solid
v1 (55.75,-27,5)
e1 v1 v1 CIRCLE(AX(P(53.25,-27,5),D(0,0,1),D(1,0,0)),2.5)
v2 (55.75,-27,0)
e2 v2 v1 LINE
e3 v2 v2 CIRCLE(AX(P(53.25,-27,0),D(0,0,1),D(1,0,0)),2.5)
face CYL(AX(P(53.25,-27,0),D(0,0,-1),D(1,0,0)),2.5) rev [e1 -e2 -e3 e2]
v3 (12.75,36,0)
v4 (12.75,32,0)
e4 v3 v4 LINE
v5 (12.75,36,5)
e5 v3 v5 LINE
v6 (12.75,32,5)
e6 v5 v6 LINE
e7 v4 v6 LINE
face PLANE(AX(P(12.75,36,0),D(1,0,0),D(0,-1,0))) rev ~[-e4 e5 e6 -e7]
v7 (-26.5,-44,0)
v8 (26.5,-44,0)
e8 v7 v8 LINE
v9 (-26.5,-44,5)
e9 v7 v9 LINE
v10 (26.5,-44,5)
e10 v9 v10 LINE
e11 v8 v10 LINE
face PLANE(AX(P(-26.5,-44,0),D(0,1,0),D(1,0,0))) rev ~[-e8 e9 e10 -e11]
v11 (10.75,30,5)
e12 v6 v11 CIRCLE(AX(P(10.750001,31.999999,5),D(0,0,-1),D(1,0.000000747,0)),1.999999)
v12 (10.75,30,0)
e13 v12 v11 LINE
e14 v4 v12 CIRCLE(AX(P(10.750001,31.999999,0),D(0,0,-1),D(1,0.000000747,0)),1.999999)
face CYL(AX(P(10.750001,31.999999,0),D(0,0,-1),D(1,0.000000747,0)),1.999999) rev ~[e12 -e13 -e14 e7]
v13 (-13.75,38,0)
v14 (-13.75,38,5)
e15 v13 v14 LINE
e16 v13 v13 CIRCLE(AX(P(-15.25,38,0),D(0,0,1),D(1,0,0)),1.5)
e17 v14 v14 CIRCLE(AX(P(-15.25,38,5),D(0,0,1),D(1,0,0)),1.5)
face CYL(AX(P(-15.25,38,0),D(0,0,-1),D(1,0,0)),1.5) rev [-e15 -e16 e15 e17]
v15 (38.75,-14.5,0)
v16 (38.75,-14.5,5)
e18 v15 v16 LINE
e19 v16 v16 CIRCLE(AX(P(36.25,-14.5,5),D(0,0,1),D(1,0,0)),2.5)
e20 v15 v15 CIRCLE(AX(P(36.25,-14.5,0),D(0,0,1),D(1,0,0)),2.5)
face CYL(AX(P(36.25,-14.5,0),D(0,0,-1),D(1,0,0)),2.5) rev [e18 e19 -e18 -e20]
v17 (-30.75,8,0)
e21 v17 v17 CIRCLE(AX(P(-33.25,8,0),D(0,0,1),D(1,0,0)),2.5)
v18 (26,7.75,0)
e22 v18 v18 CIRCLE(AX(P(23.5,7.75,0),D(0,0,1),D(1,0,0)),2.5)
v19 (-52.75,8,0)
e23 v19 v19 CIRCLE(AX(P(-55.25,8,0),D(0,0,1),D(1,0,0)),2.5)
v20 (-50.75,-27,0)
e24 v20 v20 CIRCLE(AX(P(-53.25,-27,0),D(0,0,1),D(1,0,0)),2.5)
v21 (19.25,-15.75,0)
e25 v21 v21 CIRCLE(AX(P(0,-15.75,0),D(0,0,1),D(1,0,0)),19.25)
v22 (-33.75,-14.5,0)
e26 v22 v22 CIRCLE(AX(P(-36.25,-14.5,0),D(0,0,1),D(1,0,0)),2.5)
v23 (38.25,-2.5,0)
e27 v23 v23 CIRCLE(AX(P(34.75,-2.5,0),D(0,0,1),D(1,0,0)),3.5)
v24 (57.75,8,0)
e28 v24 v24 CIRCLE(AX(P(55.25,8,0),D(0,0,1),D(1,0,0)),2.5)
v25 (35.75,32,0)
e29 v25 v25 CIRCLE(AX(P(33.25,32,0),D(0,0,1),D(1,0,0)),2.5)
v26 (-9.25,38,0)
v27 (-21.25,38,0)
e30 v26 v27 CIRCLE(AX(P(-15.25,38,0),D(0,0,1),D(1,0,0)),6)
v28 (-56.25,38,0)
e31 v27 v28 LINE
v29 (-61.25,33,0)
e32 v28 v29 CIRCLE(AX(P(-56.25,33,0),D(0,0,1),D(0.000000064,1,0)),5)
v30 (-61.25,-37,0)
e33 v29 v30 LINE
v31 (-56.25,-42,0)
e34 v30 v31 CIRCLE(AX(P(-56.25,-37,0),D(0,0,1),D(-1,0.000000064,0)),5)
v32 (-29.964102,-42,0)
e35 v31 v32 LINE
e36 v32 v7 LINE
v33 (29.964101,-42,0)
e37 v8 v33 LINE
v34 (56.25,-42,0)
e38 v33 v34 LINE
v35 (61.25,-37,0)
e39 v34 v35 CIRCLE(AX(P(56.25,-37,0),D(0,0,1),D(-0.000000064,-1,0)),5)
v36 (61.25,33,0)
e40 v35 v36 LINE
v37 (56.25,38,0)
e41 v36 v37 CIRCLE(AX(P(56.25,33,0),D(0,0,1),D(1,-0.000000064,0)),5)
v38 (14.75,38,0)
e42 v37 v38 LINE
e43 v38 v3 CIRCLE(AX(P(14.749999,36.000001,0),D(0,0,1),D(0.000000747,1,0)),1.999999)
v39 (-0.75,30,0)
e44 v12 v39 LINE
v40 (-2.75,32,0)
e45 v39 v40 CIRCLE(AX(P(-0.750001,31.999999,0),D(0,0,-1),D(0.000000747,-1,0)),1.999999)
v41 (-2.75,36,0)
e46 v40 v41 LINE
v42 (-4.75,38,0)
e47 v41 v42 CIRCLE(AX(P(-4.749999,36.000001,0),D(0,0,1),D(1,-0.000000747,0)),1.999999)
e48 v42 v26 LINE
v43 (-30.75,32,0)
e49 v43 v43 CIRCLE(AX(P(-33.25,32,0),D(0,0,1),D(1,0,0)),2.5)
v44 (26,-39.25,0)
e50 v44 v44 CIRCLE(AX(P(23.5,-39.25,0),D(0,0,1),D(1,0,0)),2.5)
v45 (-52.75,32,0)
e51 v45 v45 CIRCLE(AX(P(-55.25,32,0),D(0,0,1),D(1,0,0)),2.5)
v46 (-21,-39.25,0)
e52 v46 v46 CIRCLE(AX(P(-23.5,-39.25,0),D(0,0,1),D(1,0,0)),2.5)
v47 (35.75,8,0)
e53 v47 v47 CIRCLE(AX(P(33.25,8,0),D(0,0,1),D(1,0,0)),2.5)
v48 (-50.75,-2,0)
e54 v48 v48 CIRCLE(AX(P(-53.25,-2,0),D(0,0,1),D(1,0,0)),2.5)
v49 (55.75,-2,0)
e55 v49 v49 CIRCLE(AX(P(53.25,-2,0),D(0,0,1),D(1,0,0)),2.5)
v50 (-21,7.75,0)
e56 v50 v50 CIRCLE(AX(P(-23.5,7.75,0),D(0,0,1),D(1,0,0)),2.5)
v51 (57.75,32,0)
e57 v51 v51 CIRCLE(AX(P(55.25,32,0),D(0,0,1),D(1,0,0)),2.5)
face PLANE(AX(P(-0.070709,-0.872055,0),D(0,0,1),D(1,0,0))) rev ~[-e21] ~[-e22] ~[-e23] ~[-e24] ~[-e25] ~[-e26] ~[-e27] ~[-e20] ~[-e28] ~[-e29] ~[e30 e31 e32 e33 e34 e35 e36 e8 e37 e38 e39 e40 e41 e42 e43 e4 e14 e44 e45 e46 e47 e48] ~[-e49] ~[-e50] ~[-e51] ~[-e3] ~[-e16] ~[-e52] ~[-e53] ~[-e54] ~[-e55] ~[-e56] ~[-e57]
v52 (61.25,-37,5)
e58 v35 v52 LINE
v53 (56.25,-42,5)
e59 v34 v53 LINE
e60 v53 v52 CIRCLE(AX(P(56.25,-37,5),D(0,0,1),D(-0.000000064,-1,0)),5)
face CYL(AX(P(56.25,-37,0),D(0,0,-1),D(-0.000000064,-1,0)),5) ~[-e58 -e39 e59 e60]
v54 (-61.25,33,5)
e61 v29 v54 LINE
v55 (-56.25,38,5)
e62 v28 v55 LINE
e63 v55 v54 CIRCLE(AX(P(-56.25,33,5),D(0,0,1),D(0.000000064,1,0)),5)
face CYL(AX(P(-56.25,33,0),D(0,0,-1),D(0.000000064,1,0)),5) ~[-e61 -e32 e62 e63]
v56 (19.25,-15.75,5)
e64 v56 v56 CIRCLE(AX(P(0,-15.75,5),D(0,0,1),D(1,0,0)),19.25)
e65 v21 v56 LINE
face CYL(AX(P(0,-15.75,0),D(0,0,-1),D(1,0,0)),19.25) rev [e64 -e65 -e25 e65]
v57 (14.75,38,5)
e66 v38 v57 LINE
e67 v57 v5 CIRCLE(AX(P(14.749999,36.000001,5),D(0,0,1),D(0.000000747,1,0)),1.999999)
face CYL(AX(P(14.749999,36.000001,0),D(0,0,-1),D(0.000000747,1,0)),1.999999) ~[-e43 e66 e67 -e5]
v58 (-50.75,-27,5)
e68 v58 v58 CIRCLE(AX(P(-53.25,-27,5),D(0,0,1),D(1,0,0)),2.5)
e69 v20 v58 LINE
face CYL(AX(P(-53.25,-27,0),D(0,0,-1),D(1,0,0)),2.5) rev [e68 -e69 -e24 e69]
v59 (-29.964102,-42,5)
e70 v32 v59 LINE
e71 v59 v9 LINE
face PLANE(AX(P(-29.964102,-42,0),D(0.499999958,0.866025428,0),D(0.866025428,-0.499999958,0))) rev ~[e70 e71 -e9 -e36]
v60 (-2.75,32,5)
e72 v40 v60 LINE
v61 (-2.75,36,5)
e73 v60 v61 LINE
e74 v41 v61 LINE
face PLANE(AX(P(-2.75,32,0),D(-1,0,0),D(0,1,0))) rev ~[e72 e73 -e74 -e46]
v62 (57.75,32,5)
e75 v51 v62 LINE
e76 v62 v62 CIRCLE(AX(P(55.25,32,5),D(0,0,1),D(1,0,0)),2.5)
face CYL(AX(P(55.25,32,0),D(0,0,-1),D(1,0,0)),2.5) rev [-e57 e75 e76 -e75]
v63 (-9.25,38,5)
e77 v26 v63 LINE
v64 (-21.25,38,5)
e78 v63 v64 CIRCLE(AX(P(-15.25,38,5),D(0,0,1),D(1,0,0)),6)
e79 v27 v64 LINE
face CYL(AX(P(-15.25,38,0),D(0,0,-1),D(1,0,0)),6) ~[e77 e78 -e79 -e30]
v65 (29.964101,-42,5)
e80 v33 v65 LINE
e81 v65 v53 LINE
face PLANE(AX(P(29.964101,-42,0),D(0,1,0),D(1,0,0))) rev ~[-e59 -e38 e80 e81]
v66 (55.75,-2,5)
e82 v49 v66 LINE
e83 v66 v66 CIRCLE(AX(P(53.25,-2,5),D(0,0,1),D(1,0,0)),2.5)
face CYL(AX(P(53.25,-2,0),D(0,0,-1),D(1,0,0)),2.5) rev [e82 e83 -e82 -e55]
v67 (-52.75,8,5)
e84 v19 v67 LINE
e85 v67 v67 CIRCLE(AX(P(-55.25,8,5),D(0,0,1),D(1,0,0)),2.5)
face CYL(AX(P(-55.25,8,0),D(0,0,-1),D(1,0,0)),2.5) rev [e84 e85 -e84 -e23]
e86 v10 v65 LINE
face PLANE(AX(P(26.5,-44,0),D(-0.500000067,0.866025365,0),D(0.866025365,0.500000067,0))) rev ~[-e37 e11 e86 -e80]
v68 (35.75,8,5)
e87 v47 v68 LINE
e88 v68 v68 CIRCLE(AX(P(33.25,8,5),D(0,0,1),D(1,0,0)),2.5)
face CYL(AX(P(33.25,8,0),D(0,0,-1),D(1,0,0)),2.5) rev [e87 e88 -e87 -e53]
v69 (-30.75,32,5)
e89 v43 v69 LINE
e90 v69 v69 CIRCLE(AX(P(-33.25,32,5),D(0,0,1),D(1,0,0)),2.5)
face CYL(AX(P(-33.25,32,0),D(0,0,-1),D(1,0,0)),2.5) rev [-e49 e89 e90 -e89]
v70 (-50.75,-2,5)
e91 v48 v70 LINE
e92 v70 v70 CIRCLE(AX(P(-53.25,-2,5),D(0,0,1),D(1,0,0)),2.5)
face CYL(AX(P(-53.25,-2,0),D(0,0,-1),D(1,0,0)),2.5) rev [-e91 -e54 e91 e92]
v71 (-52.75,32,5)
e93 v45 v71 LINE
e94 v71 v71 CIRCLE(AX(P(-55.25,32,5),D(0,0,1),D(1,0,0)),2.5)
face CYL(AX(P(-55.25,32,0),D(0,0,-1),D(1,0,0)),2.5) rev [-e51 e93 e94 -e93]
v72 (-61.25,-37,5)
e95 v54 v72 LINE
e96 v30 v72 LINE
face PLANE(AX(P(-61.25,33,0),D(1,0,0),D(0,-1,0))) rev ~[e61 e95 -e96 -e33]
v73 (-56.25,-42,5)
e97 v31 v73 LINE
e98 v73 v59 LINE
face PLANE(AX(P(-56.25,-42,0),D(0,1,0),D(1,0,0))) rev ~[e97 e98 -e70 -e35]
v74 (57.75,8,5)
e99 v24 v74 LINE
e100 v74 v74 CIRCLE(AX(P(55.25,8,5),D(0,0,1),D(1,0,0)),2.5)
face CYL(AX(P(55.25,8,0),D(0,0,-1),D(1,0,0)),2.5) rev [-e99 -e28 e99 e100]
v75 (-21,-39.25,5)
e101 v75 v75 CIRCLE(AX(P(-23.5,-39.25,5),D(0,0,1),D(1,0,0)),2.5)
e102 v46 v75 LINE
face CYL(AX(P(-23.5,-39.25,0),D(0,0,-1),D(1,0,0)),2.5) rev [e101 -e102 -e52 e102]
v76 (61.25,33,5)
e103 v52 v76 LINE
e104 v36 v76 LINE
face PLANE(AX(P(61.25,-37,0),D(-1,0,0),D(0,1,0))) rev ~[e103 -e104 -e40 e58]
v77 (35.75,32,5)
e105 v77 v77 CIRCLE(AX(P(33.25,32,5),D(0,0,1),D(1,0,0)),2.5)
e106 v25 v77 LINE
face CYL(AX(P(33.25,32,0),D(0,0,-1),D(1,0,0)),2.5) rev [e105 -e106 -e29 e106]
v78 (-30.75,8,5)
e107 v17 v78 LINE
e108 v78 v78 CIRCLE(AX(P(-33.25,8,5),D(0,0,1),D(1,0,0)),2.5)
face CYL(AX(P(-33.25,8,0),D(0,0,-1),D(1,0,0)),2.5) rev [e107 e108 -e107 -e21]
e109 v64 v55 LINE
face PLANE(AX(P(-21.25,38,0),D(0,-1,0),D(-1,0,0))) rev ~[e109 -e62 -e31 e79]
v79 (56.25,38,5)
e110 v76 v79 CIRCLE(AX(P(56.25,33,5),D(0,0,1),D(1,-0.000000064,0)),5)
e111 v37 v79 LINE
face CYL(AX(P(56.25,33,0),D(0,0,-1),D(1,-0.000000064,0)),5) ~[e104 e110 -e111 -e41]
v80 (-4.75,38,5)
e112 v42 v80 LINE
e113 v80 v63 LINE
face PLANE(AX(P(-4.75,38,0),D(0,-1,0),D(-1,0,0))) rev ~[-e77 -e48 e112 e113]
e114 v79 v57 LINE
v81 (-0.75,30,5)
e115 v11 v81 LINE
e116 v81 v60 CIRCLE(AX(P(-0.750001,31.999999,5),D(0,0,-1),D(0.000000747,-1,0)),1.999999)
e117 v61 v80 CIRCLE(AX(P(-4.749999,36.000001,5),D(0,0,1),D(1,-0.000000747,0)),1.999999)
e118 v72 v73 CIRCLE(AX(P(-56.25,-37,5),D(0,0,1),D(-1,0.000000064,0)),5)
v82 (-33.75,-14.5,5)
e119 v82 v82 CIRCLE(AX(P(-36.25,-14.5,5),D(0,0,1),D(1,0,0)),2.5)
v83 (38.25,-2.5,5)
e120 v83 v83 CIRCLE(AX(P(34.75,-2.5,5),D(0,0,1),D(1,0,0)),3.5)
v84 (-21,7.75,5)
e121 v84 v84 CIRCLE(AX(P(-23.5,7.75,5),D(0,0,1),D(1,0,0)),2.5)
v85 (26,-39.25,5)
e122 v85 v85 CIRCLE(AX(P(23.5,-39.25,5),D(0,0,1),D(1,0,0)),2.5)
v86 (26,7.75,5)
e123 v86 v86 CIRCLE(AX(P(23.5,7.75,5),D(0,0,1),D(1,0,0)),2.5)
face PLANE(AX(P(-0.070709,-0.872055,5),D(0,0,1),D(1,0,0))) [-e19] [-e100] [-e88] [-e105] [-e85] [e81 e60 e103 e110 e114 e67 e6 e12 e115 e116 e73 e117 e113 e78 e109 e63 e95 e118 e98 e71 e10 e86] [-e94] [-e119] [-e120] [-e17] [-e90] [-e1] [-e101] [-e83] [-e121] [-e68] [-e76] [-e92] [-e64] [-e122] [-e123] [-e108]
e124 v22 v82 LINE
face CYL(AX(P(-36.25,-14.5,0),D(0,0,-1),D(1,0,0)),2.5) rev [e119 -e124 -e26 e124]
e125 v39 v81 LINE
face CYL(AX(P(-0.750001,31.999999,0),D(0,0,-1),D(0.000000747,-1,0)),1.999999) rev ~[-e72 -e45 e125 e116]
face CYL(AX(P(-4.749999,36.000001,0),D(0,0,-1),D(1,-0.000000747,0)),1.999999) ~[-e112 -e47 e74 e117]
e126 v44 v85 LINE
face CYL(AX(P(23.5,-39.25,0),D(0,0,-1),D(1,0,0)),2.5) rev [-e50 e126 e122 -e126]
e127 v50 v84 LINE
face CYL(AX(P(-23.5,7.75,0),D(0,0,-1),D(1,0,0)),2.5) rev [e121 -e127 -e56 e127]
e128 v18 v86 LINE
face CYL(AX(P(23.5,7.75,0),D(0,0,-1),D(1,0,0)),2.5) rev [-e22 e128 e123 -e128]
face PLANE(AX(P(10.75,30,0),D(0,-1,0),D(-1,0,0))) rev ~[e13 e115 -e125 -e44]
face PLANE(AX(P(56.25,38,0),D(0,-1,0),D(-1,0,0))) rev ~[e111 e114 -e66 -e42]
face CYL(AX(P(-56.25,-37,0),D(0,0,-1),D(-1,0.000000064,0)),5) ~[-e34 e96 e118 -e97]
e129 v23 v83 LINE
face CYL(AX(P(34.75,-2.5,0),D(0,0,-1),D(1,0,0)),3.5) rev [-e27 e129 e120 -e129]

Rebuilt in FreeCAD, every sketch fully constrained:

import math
import FreeCAD as App
import Part
import Sketcher

V = App.Vector
Q = App.Units.Quantity

doc = App.newDocument("Part")
body = doc.addObject("PartDesign::Body", "Body")

sketch1 = body.newObject("Sketcher::SketchObject", "Sketch")
sketch1.AttachmentSupport = (doc.getObject("XY_Plane"), [""])
sketch1.MapMode = "FlatFace"
sketch1.addGeometry([
    Part.LineSegment(V(56.25, 38, 0), V(14.75, 38, 0)),
    Part.ArcOfCircle(Part.Circle(V(14.749999, 36.000001, 0), V(0, 0, 1), 1.999999), math.radians(89.999957), math.radians(180.000043)),
    Part.LineSegment(V(12.75, 36, 0), V(12.75, 32, 0)),
    Part.ArcOfCircle(Part.Circle(V(10.750001, 31.999999, 0), V(0, 0, 1), 1.999999), math.radians(-90.000043), math.radians(0.000043)),
    Part.LineSegment(V(10.75, 30, 0), V(-0.75, 30, 0)),
    Part.ArcOfCircle(Part.Circle(V(-0.750001, 31.999999, 0), V(0, 0, 1), 1.999999), math.radians(179.999957), math.radians(270.000043)),
    Part.LineSegment(V(-2.75, 32, 0), V(-2.75, 36, 0)),
    Part.ArcOfCircle(Part.Circle(V(-4.749999, 36.000001, 0), V(0, 0, 1), 1.999999), math.radians(-0.000043), math.radians(90.000043)),
    Part.LineSegment(V(-4.75, 38, 0), V(-9.25, 38, 0)),
    Part.ArcOfCircle(Part.Circle(V(-15.25, 38, 0), V(0, 0, 1), 6), math.radians(0), math.radians(180)),
    Part.LineSegment(V(-21.25, 38, 0), V(-56.25, 38, 0)),
    Part.ArcOfCircle(Part.Circle(V(-56.25, 33, 0), V(0, 0, 1), 5), math.radians(89.999996), math.radians(180.000004)),
    Part.LineSegment(V(-61.25, 33, 0), V(-61.25, -37, 0)),
    Part.ArcOfCircle(Part.Circle(V(-56.25, -37, 0), V(0, 0, 1), 5), math.radians(179.999996), math.radians(270.000004)),
    Part.LineSegment(V(-56.25, -42, 0), V(-29.964102, -42, 0)),
    Part.LineSegment(V(-29.964102, -42, 0), V(-26.5, -44, 0)),
    Part.LineSegment(V(-26.5, -44, 0), V(26.5, -44, 0)),
    Part.LineSegment(V(26.5, -44, 0), V(29.964101, -42, 0)),
    Part.LineSegment(V(29.964101, -42, 0), V(56.25, -42, 0)),
    Part.ArcOfCircle(Part.Circle(V(56.25, -37, 0), V(0, 0, 1), 5), math.radians(-90.000004), math.radians(0.000004)),
    Part.LineSegment(V(61.25, -37, 0), V(61.25, 33, 0)),
    Part.ArcOfCircle(Part.Circle(V(56.25, 33, 0), V(0, 0, 1), 5), math.radians(-0.000004), math.radians(90.000004)),
    Part.Circle(V(-53.25, -27, 0), V(0, 0, 1), 2.5),
    Part.Circle(V(-23.5, -39.25, 0), V(0, 0, 1), 2.5),
    Part.Circle(V(-36.25, -14.5, 0), V(0, 0, 1), 2.5),
    Part.Circle(V(-53.25, -2, 0), V(0, 0, 1), 2.5),
    Part.Circle(V(23.5, -39.25, 0), V(0, 0, 1), 2.5),
    Part.Circle(V(53.25, -27, 0), V(0, 0, 1), 2.5),
    Part.Circle(V(0, -15.75, 0), V(0, 0, 1), 19.25),
    Part.Circle(V(36.25, -14.5, 0), V(0, 0, 1), 2.5),
    Part.Circle(V(34.75, -2.5, 0), V(0, 0, 1), 3.5),
    Part.Circle(V(53.25, -2, 0), V(0, 0, 1), 2.5),
    Part.Circle(V(-55.25, 8, 0), V(0, 0, 1), 2.5),
    Part.Circle(V(-33.25, 8, 0), V(0, 0, 1), 2.5),
    Part.Circle(V(-23.5, 7.75, 0), V(0, 0, 1), 2.5),
    Part.Circle(V(-55.25, 32, 0), V(0, 0, 1), 2.5),
    Part.Circle(V(-33.25, 32, 0), V(0, 0, 1), 2.5),
    Part.Circle(V(-15.25, 38, 0), V(0, 0, 1), 1.5),
    Part.Circle(V(23.5, 7.75, 0), V(0, 0, 1), 2.5),
    Part.Circle(V(33.25, 8, 0), V(0, 0, 1), 2.5),
    Part.Circle(V(55.25, 8, 0), V(0, 0, 1), 2.5),
    Part.Circle(V(33.25, 32, 0), V(0, 0, 1), 2.5),
    Part.Circle(V(55.25, 32, 0), V(0, 0, 1), 2.5),
], False)
sketch1.addConstraint([
    Sketcher.Constraint("Tangent", 0, 2, 1, 1),
    Sketcher.Constraint("Tangent", 1, 2, 2, 1),
    Sketcher.Constraint("Tangent", 2, 2, 3, 2),
    Sketcher.Constraint("Tangent", 3, 1, 4, 1),
    Sketcher.Constraint("Tangent", 4, 2, 5, 2),
    Sketcher.Constraint("Tangent", 5, 1, 6, 1),
    Sketcher.Constraint("Tangent", 6, 2, 7, 1),
    Sketcher.Constraint("Tangent", 7, 2, 8, 1),
    Sketcher.Constraint("Coincident", 8, 2, 9, 1),
    Sketcher.Constraint("Coincident", 9, 2, 10, 1),
    Sketcher.Constraint("Tangent", 10, 2, 11, 1),
    Sketcher.Constraint("Tangent", 11, 2, 12, 1),
    Sketcher.Constraint("Tangent", 12, 2, 13, 1),
    Sketcher.Constraint("Tangent", 13, 2, 14, 1),
    Sketcher.Constraint("Coincident", 14, 2, 15, 1),
    Sketcher.Constraint("Coincident", 15, 2, 16, 1),
    Sketcher.Constraint("Coincident", 16, 2, 17, 1),
    Sketcher.Constraint("Coincident", 17, 2, 18, 1),
    Sketcher.Constraint("Tangent", 18, 2, 19, 1),
    Sketcher.Constraint("Tangent", 19, 2, 20, 1),
    Sketcher.Constraint("Tangent", 20, 2, 21, 1),
    Sketcher.Constraint("Tangent", 21, 2, 0, 1),
    Sketcher.Constraint("Horizontal", 0),
    Sketcher.Constraint("Vertical", 2),
    Sketcher.Constraint("Horizontal", 4),
    Sketcher.Constraint("Vertical", 6),
    Sketcher.Constraint("Horizontal", 8),
    Sketcher.Constraint("Horizontal", 10),
    Sketcher.Constraint("Vertical", 12),
    Sketcher.Constraint("Horizontal", 14),
    Sketcher.Constraint("Horizontal", 16),
    Sketcher.Constraint("Horizontal", 18),
    Sketcher.Constraint("Vertical", 20),
    Sketcher.Constraint("Coincident", 37, 3, 9, 3),
    Sketcher.Constraint("Equal", 1, 3),
    Sketcher.Constraint("Equal", 3, 5),
    Sketcher.Constraint("Equal", 5, 7),
    Sketcher.Constraint("Equal", 11, 13),
    Sketcher.Constraint("Equal", 13, 19),
    Sketcher.Constraint("Equal", 19, 21),
    Sketcher.Constraint("Equal", 22, 23),
    Sketcher.Constraint("Equal", 23, 24),
    Sketcher.Constraint("Equal", 24, 25),
    Sketcher.Constraint("Equal", 25, 26),
    Sketcher.Constraint("Equal", 26, 27),
    Sketcher.Constraint("Equal", 27, 29),
    Sketcher.Constraint("Equal", 29, 31),
    Sketcher.Constraint("Equal", 31, 32),
    Sketcher.Constraint("Equal", 32, 33),
    Sketcher.Constraint("Equal", 33, 34),
    Sketcher.Constraint("Equal", 34, 35),
    Sketcher.Constraint("Equal", 35, 36),
    Sketcher.Constraint("Equal", 36, 38),
    Sketcher.Constraint("Equal", 38, 39),
    Sketcher.Constraint("Equal", 39, 40),
    Sketcher.Constraint("Equal", 40, 41),
    Sketcher.Constraint("Equal", 41, 42),
    Sketcher.Constraint("Symmetric", 13, 3, 19, 3, -2),
    Sketcher.Constraint("Symmetric", 23, 3, 26, 3, -2),
    Sketcher.Constraint("Symmetric", 22, 3, 27, 3, -2),
    Sketcher.Constraint("Symmetric", 24, 3, 29, 3, -2),
    Sketcher.Constraint("Symmetric", 25, 3, 31, 3, -2),
    Sketcher.Constraint("Symmetric", 34, 3, 38, 3, -2),
    Sketcher.Constraint("Symmetric", 33, 3, 39, 3, -2),
    Sketcher.Constraint("Symmetric", 32, 3, 40, 3, -2),
    Sketcher.Constraint("Symmetric", 36, 3, 41, 3, -2),
    Sketcher.Constraint("Symmetric", 35, 3, 42, 3, -2),
    Sketcher.Constraint("PointOnObject", 28, 3, -2),
    Sketcher.Constraint("Horizontal", 1, 3, 7, 3),
    Sketcher.Constraint("Horizontal", 11, 3, 21, 3),
    Sketcher.Constraint("Horizontal", 32, 3, 33, 3),
    Sketcher.Constraint("Horizontal", 5, 3, 35, 3),
    Sketcher.Constraint("Horizontal", 35, 3, 36, 3),
    Sketcher.Constraint("Horizontal", 37, 3, 0, 2),
    Sketcher.Constraint("Vertical", 22, 3, 25, 3),
    Sketcher.Constraint("Vertical", 23, 3, 34, 3),
    Sketcher.Constraint("Vertical", 32, 3, 35, 3),
    Sketcher.Constraint("Vertical", 33, 3, 36, 3),
    Sketcher.Constraint("Equal", 14, 18),
    Sketcher.Constraint("Equal", 15, 17),
    Sketcher.Constraint("Diameter", 22, Q("5 mm")),
    Sketcher.Constraint("Diameter", 30, Q("7 mm")),
    Sketcher.Constraint("Diameter", 37, Q("3 mm")),
    Sketcher.Constraint("Radius", 1, Q("1.999999 mm")),
    Sketcher.Constraint("Radius", 9, Q("6 mm")),
    Sketcher.Constraint("Radius", 11, Q("5 mm")),
    Sketcher.Constraint("Diameter", 28, Q("38.5 mm")),
    Sketcher.Constraint("DistanceX", 10, 2, 10, 1, Q("35 mm")),
    Sketcher.Constraint("DistanceX", 16, 1, 16, 2, Q("53 mm")),
    Sketcher.Constraint("DistanceY", 2, 2, 2, 1, Q("4 mm")),
    Sketcher.Constraint("DistanceY", 12, 2, 12, 1, Q("70 mm")),
    Sketcher.Constraint("Angle", 15, Q("-29.999997 deg")),
    Sketcher.Constraint("Distance", 15, Q("4 mm")),
    Sketcher.Constraint("DistanceX", 0, 2, 0, 1, Q("41.5 mm")),
    Sketcher.Constraint("DistanceX", 4, 2, 4, 1, Q("11.5 mm")),
    Sketcher.Constraint("DistanceX", 8, 2, 8, 1, Q("4.5 mm")),
    Sketcher.Constraint("DistanceY", -1, 1, 1, 3, Q("36.000001 mm")),
    Sketcher.Constraint("DistanceY", 22, 3, -1, 1, Q("27 mm")),
    Sketcher.Constraint("DistanceY", 25, 3, -1, 1, Q("2 mm")),
    Sketcher.Constraint("DistanceY", -1, 1, 32, 3, Q("8 mm")),
    Sketcher.Constraint("DistanceX", 13, 3, 22, 3, Q("3 mm")),
    Sketcher.Constraint("DistanceX", 22, 3, 24, 3, Q("17 mm")),
    Sketcher.Constraint("DistanceX", 23, 3, 26, 3, Q("47 mm")),
    Sketcher.Constraint("DistanceY", 29, 3, 30, 3, Q("12 mm")),
    Sketcher.Constraint("DistanceX", 32, 3, 25, 3, Q("2 mm")),
    Sketcher.Constraint("DistanceX", 32, 3, 33, 3, Q("22 mm")),
    Sketcher.Constraint("DistanceY", 24, 3, -1, 1, Q("14.5 mm")),
    Sketcher.Constraint("DistanceY", 23, 3, 28, 3, Q("23.5 mm")),
    Sketcher.Constraint("DistanceX", 30, 3, 29, 3, Q("1.5 mm")),
    Sketcher.Constraint("DistanceY", 23, 3, -1, 1, Q("39.25 mm")),
    Sketcher.Constraint("DistanceY", -1, 1, 34, 3, Q("7.75 mm")),
])
pad1 = body.newObject("PartDesign::Pad", "Pad")
pad1.Profile = sketch1
pad1.Length = 5

doc.recompute()
